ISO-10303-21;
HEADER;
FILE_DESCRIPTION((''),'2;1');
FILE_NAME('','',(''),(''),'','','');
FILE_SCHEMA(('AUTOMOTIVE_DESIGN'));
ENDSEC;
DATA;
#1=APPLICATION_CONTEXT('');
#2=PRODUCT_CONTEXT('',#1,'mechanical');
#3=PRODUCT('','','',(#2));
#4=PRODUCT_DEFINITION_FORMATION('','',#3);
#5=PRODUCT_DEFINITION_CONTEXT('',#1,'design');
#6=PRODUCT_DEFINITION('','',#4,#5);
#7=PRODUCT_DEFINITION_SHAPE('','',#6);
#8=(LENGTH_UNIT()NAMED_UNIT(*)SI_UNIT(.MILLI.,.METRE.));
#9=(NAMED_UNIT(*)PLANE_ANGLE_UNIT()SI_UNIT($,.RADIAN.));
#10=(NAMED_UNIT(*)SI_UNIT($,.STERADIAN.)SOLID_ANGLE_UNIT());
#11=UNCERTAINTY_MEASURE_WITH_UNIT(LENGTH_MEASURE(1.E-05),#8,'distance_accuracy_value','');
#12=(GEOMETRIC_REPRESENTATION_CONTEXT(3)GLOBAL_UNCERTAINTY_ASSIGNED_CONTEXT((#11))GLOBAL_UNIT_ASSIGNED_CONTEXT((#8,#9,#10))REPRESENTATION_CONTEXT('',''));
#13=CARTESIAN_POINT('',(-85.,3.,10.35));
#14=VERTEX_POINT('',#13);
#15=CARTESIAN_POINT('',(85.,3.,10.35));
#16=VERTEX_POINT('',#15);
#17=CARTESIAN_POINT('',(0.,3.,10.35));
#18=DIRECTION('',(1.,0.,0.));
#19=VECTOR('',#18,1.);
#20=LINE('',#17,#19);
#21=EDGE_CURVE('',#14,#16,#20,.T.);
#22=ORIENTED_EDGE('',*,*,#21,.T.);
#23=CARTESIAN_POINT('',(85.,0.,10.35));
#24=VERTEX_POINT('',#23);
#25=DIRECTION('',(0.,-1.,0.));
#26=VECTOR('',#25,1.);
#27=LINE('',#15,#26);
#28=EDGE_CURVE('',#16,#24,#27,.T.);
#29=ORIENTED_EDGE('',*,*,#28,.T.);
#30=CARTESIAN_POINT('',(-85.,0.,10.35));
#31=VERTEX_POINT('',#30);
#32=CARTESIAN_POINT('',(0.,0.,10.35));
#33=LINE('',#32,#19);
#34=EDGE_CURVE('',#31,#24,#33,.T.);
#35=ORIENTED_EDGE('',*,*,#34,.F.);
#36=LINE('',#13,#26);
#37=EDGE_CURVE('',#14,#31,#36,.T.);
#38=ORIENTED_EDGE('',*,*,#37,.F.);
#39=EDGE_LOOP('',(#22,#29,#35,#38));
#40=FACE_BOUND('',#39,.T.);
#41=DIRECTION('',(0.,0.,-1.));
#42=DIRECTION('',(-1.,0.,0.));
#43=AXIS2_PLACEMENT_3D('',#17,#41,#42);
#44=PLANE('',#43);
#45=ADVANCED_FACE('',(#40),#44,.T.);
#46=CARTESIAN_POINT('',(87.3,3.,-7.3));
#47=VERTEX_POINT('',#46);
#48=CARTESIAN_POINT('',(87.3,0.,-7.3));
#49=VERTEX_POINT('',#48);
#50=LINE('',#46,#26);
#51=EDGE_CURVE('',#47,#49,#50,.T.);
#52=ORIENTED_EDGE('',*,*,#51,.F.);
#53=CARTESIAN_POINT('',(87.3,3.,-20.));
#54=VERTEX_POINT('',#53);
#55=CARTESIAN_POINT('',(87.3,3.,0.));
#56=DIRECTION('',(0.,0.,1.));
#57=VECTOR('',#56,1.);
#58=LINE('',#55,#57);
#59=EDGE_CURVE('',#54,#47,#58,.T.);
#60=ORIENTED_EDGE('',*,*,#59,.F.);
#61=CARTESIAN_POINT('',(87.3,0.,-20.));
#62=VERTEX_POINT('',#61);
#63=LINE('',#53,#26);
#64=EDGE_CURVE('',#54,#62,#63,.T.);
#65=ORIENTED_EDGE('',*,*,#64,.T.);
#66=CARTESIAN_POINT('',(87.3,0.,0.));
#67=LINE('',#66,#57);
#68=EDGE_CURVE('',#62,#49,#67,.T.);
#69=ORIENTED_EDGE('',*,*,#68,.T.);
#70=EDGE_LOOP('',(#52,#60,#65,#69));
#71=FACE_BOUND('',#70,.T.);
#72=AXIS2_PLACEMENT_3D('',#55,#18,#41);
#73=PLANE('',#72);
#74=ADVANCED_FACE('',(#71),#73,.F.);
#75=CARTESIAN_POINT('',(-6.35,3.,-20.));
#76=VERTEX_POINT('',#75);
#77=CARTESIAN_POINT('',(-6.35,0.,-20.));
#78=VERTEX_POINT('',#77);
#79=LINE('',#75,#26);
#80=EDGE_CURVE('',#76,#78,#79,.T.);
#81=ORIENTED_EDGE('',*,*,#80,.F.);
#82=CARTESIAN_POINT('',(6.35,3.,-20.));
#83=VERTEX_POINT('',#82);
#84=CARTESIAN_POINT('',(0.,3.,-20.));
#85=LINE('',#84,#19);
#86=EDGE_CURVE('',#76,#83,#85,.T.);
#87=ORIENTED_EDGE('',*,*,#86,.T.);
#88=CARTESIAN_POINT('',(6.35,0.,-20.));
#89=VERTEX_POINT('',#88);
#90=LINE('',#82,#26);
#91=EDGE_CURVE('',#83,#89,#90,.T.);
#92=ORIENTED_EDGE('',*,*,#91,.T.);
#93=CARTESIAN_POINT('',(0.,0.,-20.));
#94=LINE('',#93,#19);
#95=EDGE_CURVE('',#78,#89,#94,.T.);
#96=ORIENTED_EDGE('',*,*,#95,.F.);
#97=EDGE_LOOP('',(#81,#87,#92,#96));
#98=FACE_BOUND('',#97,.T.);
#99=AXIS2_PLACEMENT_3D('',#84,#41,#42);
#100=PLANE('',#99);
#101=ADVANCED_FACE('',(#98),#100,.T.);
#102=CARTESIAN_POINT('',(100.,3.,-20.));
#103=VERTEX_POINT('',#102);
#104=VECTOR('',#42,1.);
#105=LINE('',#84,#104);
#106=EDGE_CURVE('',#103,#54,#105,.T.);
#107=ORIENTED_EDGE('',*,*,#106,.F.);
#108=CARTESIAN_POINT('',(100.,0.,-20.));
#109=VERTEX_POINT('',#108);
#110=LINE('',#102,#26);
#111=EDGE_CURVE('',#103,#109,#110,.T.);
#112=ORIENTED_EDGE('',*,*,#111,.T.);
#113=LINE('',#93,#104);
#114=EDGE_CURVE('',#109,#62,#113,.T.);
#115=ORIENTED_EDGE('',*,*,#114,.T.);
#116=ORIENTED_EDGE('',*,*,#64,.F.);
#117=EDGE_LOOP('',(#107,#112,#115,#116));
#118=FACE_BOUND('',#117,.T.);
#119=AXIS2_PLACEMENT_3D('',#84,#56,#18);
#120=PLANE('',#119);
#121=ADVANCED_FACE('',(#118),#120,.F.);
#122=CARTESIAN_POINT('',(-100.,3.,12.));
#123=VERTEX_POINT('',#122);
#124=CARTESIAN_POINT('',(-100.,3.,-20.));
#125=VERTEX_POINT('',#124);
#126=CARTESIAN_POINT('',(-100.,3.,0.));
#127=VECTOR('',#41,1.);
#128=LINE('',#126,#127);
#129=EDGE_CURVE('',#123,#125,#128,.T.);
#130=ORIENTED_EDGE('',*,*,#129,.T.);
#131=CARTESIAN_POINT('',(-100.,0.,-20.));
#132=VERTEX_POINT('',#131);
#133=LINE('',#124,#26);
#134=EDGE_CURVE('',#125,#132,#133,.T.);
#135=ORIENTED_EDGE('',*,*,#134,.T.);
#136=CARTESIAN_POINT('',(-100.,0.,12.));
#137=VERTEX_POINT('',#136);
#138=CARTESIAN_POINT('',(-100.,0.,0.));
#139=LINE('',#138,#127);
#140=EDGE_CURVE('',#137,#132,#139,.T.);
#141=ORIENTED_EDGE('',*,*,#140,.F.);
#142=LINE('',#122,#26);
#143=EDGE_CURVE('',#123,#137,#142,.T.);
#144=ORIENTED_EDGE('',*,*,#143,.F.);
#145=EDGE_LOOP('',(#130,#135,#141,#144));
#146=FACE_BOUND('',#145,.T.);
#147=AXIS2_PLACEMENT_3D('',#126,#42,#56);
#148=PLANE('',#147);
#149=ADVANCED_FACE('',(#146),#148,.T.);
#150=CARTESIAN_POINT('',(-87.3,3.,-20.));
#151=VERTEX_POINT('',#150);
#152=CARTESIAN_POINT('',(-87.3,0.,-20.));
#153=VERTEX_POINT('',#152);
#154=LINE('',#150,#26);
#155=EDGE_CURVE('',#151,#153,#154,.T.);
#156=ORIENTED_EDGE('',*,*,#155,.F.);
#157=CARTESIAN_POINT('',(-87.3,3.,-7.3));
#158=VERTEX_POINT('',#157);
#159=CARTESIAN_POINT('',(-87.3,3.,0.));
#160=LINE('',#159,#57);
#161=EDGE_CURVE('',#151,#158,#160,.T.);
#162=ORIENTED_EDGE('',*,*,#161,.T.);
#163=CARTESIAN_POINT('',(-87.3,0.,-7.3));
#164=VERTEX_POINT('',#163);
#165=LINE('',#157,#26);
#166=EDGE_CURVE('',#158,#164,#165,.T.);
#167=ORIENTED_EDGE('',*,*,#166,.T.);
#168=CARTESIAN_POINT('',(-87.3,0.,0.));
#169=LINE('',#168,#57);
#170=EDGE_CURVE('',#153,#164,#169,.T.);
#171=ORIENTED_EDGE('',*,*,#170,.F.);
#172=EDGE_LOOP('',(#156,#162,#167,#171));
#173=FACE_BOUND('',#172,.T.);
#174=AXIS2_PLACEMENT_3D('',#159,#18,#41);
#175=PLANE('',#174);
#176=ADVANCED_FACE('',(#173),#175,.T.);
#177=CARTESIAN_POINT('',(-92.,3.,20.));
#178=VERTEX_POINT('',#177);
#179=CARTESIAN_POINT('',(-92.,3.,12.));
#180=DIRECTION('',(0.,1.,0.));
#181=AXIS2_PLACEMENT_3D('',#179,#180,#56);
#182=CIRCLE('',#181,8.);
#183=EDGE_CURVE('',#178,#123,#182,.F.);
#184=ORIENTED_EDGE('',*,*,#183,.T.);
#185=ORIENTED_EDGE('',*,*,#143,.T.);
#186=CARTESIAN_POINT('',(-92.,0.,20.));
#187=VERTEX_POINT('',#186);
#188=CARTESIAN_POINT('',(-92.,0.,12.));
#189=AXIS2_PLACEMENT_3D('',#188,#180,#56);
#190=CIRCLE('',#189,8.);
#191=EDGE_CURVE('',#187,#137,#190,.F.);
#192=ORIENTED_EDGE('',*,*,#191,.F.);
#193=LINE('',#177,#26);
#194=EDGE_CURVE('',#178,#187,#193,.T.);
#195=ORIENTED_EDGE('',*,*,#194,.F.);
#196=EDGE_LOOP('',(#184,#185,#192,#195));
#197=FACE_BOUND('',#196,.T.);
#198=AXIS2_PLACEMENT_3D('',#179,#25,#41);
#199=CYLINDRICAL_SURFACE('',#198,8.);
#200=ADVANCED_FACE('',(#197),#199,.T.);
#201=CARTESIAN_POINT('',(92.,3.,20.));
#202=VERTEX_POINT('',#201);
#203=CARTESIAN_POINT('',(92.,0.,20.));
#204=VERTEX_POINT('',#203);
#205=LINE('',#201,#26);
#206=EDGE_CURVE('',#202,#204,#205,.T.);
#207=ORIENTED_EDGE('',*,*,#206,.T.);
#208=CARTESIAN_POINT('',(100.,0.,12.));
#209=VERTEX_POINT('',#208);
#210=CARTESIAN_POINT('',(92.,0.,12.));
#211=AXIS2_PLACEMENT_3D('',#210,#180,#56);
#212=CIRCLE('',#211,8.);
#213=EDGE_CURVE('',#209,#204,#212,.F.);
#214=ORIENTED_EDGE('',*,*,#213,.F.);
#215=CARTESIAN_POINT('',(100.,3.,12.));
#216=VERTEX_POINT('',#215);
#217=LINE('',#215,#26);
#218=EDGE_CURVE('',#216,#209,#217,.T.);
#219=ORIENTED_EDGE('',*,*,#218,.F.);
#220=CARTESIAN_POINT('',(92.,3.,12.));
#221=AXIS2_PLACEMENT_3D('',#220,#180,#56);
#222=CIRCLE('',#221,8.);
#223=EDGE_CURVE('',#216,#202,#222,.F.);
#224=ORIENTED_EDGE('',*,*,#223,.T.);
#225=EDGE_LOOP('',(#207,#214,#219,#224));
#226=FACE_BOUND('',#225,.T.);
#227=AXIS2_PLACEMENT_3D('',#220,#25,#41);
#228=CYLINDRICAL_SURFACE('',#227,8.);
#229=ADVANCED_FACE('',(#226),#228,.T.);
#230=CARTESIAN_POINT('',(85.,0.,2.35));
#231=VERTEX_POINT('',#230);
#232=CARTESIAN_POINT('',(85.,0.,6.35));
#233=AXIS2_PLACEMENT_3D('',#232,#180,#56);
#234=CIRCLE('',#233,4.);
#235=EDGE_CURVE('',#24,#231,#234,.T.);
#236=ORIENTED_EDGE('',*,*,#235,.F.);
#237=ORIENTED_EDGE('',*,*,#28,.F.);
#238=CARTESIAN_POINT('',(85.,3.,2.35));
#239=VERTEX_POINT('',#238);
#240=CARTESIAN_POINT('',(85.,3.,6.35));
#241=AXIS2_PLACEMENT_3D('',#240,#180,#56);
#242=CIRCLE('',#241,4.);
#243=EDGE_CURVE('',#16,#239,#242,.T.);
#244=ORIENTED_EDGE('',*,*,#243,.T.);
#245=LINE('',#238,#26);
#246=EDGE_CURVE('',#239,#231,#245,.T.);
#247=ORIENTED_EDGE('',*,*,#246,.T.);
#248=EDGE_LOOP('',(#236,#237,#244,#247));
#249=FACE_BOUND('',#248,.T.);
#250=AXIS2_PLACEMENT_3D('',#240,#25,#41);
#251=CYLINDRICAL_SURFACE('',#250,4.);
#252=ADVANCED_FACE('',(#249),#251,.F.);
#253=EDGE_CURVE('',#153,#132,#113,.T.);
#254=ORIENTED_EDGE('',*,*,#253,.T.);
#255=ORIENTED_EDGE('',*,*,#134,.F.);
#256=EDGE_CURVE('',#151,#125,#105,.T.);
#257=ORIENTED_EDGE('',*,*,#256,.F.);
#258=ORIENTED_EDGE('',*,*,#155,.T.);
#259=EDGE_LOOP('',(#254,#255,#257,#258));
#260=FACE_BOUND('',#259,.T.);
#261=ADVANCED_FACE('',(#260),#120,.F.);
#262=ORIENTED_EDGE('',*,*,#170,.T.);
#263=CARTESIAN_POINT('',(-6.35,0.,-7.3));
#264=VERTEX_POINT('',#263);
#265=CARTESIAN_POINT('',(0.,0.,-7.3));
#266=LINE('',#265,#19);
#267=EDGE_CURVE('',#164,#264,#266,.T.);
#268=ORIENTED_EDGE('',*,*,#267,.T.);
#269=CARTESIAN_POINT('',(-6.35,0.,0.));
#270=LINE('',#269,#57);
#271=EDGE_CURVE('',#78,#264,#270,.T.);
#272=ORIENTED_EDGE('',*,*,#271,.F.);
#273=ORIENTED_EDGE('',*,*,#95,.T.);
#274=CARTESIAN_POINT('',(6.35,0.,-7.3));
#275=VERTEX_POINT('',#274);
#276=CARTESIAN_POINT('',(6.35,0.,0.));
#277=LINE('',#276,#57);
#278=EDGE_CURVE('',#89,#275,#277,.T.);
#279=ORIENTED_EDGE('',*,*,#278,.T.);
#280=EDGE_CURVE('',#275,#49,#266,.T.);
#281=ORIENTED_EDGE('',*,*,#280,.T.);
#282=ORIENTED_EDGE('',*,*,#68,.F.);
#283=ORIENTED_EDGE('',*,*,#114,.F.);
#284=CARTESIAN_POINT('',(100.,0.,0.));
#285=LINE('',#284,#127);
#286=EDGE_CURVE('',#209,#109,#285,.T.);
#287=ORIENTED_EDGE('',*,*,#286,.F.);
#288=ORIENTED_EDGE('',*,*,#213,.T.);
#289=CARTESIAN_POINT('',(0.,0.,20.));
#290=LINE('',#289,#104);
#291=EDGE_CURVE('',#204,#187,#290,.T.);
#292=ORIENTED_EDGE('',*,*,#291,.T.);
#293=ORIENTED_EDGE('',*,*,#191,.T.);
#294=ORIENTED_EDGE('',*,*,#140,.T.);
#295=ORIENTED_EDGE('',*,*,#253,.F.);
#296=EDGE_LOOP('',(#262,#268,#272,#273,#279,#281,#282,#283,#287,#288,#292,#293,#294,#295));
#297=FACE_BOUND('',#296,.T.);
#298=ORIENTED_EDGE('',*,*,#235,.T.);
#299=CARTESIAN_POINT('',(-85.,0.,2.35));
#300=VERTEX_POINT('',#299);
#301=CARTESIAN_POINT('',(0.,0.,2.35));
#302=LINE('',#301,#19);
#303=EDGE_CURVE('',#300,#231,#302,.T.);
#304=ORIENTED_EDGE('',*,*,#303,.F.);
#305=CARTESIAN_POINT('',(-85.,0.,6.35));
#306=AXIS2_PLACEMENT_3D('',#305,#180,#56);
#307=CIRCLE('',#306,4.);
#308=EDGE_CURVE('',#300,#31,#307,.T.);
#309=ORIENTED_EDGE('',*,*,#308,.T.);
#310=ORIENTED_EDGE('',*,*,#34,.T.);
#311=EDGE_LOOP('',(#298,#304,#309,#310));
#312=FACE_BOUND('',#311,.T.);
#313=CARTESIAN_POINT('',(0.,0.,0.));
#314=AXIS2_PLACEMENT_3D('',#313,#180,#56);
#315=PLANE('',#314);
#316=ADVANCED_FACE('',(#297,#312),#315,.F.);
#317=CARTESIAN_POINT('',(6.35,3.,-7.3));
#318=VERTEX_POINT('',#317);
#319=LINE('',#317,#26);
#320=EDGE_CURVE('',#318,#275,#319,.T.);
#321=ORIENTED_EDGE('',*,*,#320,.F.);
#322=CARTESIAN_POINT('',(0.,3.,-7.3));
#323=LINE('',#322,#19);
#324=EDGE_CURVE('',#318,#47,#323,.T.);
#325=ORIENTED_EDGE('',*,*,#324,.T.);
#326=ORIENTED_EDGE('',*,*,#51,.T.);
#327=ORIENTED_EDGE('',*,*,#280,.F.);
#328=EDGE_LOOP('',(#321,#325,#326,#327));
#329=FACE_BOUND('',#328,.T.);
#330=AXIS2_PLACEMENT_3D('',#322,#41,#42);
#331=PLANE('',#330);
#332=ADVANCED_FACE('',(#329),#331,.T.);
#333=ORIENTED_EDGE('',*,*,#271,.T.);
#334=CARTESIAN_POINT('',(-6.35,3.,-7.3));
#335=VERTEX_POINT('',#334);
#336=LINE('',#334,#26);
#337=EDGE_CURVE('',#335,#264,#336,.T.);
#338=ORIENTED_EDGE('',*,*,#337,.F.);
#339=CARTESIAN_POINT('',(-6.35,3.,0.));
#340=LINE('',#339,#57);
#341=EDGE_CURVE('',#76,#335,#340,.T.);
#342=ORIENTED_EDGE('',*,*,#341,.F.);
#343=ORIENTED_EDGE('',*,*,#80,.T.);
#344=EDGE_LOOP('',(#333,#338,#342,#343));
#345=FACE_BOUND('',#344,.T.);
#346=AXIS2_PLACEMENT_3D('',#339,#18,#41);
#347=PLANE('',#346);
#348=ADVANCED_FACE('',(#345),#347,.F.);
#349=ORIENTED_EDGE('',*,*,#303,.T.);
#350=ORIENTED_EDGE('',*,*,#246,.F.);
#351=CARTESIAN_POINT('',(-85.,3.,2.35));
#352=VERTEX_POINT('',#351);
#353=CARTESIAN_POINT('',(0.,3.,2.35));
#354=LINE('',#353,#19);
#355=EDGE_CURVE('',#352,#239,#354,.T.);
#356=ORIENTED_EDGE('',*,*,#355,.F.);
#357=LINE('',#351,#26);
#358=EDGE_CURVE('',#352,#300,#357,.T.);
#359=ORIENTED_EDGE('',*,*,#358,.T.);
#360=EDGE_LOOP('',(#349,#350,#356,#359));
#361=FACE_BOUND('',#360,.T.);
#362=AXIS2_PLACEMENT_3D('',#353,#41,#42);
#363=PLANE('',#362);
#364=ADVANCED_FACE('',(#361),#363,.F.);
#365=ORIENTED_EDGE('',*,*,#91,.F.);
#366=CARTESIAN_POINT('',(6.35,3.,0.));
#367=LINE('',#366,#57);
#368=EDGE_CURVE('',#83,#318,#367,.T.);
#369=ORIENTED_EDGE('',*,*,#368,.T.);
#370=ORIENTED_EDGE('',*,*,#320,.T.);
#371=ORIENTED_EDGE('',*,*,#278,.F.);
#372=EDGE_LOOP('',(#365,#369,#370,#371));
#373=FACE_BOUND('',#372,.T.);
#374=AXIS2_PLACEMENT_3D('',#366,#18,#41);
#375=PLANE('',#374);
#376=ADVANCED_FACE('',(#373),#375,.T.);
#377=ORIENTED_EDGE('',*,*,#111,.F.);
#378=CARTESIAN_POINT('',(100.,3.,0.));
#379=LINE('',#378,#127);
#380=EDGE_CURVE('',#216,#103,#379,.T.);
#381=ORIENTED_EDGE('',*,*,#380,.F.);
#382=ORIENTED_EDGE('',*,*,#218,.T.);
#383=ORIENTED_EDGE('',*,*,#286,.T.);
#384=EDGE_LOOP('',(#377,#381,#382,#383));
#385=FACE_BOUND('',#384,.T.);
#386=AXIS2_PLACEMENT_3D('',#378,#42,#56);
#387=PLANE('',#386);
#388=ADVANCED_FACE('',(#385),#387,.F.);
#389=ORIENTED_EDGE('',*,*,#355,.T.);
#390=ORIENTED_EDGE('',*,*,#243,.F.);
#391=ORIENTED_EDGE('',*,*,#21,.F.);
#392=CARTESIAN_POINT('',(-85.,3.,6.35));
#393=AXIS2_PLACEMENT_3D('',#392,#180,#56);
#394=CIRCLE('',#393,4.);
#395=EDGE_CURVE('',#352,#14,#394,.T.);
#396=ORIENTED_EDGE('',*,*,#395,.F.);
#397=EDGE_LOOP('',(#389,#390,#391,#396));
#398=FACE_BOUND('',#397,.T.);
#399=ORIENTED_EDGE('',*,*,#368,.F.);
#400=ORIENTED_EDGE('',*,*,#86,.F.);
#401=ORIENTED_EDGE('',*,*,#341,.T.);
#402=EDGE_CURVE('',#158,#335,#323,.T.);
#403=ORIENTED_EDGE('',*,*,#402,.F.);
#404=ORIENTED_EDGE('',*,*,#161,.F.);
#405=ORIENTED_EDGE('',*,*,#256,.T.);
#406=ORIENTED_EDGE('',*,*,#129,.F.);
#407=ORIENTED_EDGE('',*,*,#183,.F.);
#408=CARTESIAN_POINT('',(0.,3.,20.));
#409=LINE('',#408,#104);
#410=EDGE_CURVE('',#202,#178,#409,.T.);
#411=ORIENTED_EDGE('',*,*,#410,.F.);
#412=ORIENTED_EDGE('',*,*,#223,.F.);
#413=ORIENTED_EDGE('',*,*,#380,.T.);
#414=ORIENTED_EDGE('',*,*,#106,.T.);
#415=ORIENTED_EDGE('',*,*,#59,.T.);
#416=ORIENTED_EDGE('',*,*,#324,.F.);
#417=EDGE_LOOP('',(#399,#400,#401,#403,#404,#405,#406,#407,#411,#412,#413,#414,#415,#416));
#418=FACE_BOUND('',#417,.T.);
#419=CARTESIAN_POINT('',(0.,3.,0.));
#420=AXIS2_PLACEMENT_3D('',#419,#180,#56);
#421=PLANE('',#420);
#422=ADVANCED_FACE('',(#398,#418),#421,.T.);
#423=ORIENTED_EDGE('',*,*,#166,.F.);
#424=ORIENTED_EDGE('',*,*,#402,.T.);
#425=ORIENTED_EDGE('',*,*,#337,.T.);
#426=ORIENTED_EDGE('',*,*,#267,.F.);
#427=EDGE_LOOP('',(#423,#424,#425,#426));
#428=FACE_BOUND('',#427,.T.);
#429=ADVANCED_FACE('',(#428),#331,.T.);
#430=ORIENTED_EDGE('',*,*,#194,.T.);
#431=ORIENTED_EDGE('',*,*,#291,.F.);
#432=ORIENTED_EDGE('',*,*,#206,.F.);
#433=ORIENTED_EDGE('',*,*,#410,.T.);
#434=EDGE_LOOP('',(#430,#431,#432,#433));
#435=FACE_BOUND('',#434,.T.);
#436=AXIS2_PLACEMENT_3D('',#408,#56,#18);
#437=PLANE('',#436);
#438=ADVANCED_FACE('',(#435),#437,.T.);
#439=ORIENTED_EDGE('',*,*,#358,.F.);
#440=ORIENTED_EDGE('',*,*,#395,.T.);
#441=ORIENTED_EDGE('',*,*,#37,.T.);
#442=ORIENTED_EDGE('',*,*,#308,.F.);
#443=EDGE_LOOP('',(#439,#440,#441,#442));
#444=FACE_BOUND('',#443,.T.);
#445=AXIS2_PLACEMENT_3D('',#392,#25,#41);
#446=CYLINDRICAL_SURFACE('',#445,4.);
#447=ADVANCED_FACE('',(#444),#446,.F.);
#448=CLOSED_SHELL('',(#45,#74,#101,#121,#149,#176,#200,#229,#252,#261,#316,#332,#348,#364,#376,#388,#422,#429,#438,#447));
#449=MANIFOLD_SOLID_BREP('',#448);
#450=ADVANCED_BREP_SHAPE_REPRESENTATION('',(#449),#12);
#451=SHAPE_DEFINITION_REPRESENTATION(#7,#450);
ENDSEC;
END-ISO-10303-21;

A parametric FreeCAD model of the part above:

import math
import FreeCAD as App
import Part
import Sketcher
from FreeCAD import Vector
Q = App.Units.Quantity

doc = App.newDocument("Part")
body = doc.addObject("PartDesign::Body", "Body")

# Sketch on XZ plane
sketch1 = body.newObject("Sketcher::SketchObject", "Sketch")
sketch1.AttachmentSupport = (doc.getObject("XZ_Plane"), [""])
sketch1.MapMode = "FlatFace"
sketch1.addGeometry([
    Part.ArcOfCircle(Part.Circle(Vector(-92, 12, 0), Vector(0, 0, 1), 8), math.radians(90), math.radians(180)),  # 0
    Part.LineSegment(Vector(-92, 20, 0), Vector(92, 20, 0)),  # 1
    Part.ArcOfCircle(Part.Circle(Vector(92, 12, 0), Vector(0, 0, 1), 8), math.radians(0), math.radians(90)),  # 2
    Part.LineSegment(Vector(100, 12, 0), Vector(100, -20, 0)),  # 3
    Part.LineSegment(Vector(100, -20, 0), Vector(87.3, -20, 0)),  # 4
    Part.LineSegment(Vector(87.3, -20, 0), Vector(87.3, -7.3, 0)),  # 5
    Part.LineSegment(Vector(87.3, -7.3, 0), Vector(6.35, -7.3, 0)),  # 6
    Part.LineSegment(Vector(6.35, -7.3, 0), Vector(6.35, -20, 0)),  # 7
    Part.LineSegment(Vector(6.35, -20, 0), Vector(-6.35, -20, 0)),  # 8
    Part.LineSegment(Vector(-6.35, -20, 0), Vector(-6.35, -7.3, 0)),  # 9
    Part.LineSegment(Vector(-6.35, -7.3, 0), Vector(-87.3, -7.3, 0)),  # 10
    Part.LineSegment(Vector(-87.3, -7.3, 0), Vector(-87.3, -20, 0)),  # 11
    Part.LineSegment(Vector(-87.3, -20, 0), Vector(-100, -20, 0)),  # 12
    Part.LineSegment(Vector(-100, -20, 0), Vector(-100, 12, 0)),  # 13
    Part.LineSegment(Vector(85, 10.35, 0), Vector(-85, 10.35, 0)),  # 14
    Part.ArcOfCircle(Part.Circle(Vector(-85, 6.35, 0), Vector(0, 0, 1), 4), math.radians(90), math.radians(270)),  # 15
    Part.LineSegment(Vector(-85, 2.35, 0), Vector(85, 2.35, 0)),  # 16
    Part.ArcOfCircle(Part.Circle(Vector(85, 6.35, 0), Vector(0, 0, 1), 4), math.radians(-90), math.radians(90)),  # 17
], False)
sketch1.addConstraint([
    Sketcher.Constraint("Tangent", 0, 1, 1, 1),
    Sketcher.Constraint("Tangent", 1, 2, 2, 2),
    Sketcher.Constraint("Tangent", 2, 1, 3, 1),
    Sketcher.Constraint("Coincident", 3, 2, 4, 1),
    Sketcher.Constraint("Coincident", 4, 2, 5, 1),
    Sketcher.Constraint("Coincident", 5, 2, 6, 1),
    Sketcher.Constraint("Coincident", 6, 2, 7, 1),
    Sketcher.Constraint("Coincident", 7, 2, 8, 1),
    Sketcher.Constraint("Coincident", 8, 2, 9, 1),
    Sketcher.Constraint("Coincident", 9, 2, 10, 1),
    Sketcher.Constraint("Coincident", 10, 2, 11, 1),
    Sketcher.Constraint("Coincident", 11, 2, 12, 1),
    Sketcher.Constraint("Coincident", 12, 2, 13, 1),
    Sketcher.Constraint("Tangent", 13, 2, 0, 2),
    Sketcher.Constraint("Tangent", 14, 2, 15, 1),
    Sketcher.Constraint("Tangent", 15, 2, 16, 1),
    Sketcher.Constraint("Tangent", 16, 2, 17, 1),
    Sketcher.Constraint("Tangent", 17, 2, 14, 1),
    Sketcher.Constraint("Horizontal", 1),
    Sketcher.Constraint("Vertical", 3),
    Sketcher.Constraint("Horizontal", 4),
    Sketcher.Constraint("Vertical", 5),
    Sketcher.Constraint("Horizontal", 6),
    Sketcher.Constraint("Vertical", 7),
    Sketcher.Constraint("Horizontal", 8),
    Sketcher.Constraint("Vertical", 9),
    Sketcher.Constraint("Horizontal", 10),
    Sketcher.Constraint("Vertical", 11),
    Sketcher.Constraint("Horizontal", 12),
    Sketcher.Constraint("Vertical", 13),
    Sketcher.Constraint("Horizontal", 14),
    Sketcher.Constraint("Horizontal", 16),
    Sketcher.Constraint("Equal", 0, 2),
    Sketcher.Constraint("Symmetric", 6, 2, 9, 2, -2),
    Sketcher.Constraint("Symmetric", 4, 2, 11, 2, -2),
    Sketcher.Constraint("Horizontal", 4, 2, 7, 2),
    Sketcher.Constraint("Equal", 4, 8),
    Sketcher.Constraint("Equal", 8, 12),
    Sketcher.Constraint("Equal", 12, 5),
    Sketcher.Constraint("Radius", 0, Q("8 mm")),
    Sketcher.Constraint("Radius", 15, Q("4 mm")),
    Sketcher.Constraint("DistanceX", 1, 1, 1, 2, Q("184 mm")),
    Sketcher.Constraint("DistanceX", 14, 2, 14, 1, Q("170 mm")),
    Sketcher.Constraint("DistanceY", 3, 2, 3, 1, Q("32 mm")),
    Sketcher.Constraint("DistanceX", 4, 2, 4, 1, Q("12.7 mm")),
    Sketcher.Constraint("DistanceY", -1, 1, 0, 3, Q("12 mm")),
    Sketcher.Constraint("DistanceX", 15, 3, -1, 1, Q("85 mm")),
    Sketcher.Constraint("DistanceY", -1, 1, 15, 3, Q("6.35 mm")),
])
pad1 = body.newObject("PartDesign::Pad", "Pad")
pad1.Profile = sketch1
pad1.Length = 3
pad1.Reversed = True

doc.recompute()
